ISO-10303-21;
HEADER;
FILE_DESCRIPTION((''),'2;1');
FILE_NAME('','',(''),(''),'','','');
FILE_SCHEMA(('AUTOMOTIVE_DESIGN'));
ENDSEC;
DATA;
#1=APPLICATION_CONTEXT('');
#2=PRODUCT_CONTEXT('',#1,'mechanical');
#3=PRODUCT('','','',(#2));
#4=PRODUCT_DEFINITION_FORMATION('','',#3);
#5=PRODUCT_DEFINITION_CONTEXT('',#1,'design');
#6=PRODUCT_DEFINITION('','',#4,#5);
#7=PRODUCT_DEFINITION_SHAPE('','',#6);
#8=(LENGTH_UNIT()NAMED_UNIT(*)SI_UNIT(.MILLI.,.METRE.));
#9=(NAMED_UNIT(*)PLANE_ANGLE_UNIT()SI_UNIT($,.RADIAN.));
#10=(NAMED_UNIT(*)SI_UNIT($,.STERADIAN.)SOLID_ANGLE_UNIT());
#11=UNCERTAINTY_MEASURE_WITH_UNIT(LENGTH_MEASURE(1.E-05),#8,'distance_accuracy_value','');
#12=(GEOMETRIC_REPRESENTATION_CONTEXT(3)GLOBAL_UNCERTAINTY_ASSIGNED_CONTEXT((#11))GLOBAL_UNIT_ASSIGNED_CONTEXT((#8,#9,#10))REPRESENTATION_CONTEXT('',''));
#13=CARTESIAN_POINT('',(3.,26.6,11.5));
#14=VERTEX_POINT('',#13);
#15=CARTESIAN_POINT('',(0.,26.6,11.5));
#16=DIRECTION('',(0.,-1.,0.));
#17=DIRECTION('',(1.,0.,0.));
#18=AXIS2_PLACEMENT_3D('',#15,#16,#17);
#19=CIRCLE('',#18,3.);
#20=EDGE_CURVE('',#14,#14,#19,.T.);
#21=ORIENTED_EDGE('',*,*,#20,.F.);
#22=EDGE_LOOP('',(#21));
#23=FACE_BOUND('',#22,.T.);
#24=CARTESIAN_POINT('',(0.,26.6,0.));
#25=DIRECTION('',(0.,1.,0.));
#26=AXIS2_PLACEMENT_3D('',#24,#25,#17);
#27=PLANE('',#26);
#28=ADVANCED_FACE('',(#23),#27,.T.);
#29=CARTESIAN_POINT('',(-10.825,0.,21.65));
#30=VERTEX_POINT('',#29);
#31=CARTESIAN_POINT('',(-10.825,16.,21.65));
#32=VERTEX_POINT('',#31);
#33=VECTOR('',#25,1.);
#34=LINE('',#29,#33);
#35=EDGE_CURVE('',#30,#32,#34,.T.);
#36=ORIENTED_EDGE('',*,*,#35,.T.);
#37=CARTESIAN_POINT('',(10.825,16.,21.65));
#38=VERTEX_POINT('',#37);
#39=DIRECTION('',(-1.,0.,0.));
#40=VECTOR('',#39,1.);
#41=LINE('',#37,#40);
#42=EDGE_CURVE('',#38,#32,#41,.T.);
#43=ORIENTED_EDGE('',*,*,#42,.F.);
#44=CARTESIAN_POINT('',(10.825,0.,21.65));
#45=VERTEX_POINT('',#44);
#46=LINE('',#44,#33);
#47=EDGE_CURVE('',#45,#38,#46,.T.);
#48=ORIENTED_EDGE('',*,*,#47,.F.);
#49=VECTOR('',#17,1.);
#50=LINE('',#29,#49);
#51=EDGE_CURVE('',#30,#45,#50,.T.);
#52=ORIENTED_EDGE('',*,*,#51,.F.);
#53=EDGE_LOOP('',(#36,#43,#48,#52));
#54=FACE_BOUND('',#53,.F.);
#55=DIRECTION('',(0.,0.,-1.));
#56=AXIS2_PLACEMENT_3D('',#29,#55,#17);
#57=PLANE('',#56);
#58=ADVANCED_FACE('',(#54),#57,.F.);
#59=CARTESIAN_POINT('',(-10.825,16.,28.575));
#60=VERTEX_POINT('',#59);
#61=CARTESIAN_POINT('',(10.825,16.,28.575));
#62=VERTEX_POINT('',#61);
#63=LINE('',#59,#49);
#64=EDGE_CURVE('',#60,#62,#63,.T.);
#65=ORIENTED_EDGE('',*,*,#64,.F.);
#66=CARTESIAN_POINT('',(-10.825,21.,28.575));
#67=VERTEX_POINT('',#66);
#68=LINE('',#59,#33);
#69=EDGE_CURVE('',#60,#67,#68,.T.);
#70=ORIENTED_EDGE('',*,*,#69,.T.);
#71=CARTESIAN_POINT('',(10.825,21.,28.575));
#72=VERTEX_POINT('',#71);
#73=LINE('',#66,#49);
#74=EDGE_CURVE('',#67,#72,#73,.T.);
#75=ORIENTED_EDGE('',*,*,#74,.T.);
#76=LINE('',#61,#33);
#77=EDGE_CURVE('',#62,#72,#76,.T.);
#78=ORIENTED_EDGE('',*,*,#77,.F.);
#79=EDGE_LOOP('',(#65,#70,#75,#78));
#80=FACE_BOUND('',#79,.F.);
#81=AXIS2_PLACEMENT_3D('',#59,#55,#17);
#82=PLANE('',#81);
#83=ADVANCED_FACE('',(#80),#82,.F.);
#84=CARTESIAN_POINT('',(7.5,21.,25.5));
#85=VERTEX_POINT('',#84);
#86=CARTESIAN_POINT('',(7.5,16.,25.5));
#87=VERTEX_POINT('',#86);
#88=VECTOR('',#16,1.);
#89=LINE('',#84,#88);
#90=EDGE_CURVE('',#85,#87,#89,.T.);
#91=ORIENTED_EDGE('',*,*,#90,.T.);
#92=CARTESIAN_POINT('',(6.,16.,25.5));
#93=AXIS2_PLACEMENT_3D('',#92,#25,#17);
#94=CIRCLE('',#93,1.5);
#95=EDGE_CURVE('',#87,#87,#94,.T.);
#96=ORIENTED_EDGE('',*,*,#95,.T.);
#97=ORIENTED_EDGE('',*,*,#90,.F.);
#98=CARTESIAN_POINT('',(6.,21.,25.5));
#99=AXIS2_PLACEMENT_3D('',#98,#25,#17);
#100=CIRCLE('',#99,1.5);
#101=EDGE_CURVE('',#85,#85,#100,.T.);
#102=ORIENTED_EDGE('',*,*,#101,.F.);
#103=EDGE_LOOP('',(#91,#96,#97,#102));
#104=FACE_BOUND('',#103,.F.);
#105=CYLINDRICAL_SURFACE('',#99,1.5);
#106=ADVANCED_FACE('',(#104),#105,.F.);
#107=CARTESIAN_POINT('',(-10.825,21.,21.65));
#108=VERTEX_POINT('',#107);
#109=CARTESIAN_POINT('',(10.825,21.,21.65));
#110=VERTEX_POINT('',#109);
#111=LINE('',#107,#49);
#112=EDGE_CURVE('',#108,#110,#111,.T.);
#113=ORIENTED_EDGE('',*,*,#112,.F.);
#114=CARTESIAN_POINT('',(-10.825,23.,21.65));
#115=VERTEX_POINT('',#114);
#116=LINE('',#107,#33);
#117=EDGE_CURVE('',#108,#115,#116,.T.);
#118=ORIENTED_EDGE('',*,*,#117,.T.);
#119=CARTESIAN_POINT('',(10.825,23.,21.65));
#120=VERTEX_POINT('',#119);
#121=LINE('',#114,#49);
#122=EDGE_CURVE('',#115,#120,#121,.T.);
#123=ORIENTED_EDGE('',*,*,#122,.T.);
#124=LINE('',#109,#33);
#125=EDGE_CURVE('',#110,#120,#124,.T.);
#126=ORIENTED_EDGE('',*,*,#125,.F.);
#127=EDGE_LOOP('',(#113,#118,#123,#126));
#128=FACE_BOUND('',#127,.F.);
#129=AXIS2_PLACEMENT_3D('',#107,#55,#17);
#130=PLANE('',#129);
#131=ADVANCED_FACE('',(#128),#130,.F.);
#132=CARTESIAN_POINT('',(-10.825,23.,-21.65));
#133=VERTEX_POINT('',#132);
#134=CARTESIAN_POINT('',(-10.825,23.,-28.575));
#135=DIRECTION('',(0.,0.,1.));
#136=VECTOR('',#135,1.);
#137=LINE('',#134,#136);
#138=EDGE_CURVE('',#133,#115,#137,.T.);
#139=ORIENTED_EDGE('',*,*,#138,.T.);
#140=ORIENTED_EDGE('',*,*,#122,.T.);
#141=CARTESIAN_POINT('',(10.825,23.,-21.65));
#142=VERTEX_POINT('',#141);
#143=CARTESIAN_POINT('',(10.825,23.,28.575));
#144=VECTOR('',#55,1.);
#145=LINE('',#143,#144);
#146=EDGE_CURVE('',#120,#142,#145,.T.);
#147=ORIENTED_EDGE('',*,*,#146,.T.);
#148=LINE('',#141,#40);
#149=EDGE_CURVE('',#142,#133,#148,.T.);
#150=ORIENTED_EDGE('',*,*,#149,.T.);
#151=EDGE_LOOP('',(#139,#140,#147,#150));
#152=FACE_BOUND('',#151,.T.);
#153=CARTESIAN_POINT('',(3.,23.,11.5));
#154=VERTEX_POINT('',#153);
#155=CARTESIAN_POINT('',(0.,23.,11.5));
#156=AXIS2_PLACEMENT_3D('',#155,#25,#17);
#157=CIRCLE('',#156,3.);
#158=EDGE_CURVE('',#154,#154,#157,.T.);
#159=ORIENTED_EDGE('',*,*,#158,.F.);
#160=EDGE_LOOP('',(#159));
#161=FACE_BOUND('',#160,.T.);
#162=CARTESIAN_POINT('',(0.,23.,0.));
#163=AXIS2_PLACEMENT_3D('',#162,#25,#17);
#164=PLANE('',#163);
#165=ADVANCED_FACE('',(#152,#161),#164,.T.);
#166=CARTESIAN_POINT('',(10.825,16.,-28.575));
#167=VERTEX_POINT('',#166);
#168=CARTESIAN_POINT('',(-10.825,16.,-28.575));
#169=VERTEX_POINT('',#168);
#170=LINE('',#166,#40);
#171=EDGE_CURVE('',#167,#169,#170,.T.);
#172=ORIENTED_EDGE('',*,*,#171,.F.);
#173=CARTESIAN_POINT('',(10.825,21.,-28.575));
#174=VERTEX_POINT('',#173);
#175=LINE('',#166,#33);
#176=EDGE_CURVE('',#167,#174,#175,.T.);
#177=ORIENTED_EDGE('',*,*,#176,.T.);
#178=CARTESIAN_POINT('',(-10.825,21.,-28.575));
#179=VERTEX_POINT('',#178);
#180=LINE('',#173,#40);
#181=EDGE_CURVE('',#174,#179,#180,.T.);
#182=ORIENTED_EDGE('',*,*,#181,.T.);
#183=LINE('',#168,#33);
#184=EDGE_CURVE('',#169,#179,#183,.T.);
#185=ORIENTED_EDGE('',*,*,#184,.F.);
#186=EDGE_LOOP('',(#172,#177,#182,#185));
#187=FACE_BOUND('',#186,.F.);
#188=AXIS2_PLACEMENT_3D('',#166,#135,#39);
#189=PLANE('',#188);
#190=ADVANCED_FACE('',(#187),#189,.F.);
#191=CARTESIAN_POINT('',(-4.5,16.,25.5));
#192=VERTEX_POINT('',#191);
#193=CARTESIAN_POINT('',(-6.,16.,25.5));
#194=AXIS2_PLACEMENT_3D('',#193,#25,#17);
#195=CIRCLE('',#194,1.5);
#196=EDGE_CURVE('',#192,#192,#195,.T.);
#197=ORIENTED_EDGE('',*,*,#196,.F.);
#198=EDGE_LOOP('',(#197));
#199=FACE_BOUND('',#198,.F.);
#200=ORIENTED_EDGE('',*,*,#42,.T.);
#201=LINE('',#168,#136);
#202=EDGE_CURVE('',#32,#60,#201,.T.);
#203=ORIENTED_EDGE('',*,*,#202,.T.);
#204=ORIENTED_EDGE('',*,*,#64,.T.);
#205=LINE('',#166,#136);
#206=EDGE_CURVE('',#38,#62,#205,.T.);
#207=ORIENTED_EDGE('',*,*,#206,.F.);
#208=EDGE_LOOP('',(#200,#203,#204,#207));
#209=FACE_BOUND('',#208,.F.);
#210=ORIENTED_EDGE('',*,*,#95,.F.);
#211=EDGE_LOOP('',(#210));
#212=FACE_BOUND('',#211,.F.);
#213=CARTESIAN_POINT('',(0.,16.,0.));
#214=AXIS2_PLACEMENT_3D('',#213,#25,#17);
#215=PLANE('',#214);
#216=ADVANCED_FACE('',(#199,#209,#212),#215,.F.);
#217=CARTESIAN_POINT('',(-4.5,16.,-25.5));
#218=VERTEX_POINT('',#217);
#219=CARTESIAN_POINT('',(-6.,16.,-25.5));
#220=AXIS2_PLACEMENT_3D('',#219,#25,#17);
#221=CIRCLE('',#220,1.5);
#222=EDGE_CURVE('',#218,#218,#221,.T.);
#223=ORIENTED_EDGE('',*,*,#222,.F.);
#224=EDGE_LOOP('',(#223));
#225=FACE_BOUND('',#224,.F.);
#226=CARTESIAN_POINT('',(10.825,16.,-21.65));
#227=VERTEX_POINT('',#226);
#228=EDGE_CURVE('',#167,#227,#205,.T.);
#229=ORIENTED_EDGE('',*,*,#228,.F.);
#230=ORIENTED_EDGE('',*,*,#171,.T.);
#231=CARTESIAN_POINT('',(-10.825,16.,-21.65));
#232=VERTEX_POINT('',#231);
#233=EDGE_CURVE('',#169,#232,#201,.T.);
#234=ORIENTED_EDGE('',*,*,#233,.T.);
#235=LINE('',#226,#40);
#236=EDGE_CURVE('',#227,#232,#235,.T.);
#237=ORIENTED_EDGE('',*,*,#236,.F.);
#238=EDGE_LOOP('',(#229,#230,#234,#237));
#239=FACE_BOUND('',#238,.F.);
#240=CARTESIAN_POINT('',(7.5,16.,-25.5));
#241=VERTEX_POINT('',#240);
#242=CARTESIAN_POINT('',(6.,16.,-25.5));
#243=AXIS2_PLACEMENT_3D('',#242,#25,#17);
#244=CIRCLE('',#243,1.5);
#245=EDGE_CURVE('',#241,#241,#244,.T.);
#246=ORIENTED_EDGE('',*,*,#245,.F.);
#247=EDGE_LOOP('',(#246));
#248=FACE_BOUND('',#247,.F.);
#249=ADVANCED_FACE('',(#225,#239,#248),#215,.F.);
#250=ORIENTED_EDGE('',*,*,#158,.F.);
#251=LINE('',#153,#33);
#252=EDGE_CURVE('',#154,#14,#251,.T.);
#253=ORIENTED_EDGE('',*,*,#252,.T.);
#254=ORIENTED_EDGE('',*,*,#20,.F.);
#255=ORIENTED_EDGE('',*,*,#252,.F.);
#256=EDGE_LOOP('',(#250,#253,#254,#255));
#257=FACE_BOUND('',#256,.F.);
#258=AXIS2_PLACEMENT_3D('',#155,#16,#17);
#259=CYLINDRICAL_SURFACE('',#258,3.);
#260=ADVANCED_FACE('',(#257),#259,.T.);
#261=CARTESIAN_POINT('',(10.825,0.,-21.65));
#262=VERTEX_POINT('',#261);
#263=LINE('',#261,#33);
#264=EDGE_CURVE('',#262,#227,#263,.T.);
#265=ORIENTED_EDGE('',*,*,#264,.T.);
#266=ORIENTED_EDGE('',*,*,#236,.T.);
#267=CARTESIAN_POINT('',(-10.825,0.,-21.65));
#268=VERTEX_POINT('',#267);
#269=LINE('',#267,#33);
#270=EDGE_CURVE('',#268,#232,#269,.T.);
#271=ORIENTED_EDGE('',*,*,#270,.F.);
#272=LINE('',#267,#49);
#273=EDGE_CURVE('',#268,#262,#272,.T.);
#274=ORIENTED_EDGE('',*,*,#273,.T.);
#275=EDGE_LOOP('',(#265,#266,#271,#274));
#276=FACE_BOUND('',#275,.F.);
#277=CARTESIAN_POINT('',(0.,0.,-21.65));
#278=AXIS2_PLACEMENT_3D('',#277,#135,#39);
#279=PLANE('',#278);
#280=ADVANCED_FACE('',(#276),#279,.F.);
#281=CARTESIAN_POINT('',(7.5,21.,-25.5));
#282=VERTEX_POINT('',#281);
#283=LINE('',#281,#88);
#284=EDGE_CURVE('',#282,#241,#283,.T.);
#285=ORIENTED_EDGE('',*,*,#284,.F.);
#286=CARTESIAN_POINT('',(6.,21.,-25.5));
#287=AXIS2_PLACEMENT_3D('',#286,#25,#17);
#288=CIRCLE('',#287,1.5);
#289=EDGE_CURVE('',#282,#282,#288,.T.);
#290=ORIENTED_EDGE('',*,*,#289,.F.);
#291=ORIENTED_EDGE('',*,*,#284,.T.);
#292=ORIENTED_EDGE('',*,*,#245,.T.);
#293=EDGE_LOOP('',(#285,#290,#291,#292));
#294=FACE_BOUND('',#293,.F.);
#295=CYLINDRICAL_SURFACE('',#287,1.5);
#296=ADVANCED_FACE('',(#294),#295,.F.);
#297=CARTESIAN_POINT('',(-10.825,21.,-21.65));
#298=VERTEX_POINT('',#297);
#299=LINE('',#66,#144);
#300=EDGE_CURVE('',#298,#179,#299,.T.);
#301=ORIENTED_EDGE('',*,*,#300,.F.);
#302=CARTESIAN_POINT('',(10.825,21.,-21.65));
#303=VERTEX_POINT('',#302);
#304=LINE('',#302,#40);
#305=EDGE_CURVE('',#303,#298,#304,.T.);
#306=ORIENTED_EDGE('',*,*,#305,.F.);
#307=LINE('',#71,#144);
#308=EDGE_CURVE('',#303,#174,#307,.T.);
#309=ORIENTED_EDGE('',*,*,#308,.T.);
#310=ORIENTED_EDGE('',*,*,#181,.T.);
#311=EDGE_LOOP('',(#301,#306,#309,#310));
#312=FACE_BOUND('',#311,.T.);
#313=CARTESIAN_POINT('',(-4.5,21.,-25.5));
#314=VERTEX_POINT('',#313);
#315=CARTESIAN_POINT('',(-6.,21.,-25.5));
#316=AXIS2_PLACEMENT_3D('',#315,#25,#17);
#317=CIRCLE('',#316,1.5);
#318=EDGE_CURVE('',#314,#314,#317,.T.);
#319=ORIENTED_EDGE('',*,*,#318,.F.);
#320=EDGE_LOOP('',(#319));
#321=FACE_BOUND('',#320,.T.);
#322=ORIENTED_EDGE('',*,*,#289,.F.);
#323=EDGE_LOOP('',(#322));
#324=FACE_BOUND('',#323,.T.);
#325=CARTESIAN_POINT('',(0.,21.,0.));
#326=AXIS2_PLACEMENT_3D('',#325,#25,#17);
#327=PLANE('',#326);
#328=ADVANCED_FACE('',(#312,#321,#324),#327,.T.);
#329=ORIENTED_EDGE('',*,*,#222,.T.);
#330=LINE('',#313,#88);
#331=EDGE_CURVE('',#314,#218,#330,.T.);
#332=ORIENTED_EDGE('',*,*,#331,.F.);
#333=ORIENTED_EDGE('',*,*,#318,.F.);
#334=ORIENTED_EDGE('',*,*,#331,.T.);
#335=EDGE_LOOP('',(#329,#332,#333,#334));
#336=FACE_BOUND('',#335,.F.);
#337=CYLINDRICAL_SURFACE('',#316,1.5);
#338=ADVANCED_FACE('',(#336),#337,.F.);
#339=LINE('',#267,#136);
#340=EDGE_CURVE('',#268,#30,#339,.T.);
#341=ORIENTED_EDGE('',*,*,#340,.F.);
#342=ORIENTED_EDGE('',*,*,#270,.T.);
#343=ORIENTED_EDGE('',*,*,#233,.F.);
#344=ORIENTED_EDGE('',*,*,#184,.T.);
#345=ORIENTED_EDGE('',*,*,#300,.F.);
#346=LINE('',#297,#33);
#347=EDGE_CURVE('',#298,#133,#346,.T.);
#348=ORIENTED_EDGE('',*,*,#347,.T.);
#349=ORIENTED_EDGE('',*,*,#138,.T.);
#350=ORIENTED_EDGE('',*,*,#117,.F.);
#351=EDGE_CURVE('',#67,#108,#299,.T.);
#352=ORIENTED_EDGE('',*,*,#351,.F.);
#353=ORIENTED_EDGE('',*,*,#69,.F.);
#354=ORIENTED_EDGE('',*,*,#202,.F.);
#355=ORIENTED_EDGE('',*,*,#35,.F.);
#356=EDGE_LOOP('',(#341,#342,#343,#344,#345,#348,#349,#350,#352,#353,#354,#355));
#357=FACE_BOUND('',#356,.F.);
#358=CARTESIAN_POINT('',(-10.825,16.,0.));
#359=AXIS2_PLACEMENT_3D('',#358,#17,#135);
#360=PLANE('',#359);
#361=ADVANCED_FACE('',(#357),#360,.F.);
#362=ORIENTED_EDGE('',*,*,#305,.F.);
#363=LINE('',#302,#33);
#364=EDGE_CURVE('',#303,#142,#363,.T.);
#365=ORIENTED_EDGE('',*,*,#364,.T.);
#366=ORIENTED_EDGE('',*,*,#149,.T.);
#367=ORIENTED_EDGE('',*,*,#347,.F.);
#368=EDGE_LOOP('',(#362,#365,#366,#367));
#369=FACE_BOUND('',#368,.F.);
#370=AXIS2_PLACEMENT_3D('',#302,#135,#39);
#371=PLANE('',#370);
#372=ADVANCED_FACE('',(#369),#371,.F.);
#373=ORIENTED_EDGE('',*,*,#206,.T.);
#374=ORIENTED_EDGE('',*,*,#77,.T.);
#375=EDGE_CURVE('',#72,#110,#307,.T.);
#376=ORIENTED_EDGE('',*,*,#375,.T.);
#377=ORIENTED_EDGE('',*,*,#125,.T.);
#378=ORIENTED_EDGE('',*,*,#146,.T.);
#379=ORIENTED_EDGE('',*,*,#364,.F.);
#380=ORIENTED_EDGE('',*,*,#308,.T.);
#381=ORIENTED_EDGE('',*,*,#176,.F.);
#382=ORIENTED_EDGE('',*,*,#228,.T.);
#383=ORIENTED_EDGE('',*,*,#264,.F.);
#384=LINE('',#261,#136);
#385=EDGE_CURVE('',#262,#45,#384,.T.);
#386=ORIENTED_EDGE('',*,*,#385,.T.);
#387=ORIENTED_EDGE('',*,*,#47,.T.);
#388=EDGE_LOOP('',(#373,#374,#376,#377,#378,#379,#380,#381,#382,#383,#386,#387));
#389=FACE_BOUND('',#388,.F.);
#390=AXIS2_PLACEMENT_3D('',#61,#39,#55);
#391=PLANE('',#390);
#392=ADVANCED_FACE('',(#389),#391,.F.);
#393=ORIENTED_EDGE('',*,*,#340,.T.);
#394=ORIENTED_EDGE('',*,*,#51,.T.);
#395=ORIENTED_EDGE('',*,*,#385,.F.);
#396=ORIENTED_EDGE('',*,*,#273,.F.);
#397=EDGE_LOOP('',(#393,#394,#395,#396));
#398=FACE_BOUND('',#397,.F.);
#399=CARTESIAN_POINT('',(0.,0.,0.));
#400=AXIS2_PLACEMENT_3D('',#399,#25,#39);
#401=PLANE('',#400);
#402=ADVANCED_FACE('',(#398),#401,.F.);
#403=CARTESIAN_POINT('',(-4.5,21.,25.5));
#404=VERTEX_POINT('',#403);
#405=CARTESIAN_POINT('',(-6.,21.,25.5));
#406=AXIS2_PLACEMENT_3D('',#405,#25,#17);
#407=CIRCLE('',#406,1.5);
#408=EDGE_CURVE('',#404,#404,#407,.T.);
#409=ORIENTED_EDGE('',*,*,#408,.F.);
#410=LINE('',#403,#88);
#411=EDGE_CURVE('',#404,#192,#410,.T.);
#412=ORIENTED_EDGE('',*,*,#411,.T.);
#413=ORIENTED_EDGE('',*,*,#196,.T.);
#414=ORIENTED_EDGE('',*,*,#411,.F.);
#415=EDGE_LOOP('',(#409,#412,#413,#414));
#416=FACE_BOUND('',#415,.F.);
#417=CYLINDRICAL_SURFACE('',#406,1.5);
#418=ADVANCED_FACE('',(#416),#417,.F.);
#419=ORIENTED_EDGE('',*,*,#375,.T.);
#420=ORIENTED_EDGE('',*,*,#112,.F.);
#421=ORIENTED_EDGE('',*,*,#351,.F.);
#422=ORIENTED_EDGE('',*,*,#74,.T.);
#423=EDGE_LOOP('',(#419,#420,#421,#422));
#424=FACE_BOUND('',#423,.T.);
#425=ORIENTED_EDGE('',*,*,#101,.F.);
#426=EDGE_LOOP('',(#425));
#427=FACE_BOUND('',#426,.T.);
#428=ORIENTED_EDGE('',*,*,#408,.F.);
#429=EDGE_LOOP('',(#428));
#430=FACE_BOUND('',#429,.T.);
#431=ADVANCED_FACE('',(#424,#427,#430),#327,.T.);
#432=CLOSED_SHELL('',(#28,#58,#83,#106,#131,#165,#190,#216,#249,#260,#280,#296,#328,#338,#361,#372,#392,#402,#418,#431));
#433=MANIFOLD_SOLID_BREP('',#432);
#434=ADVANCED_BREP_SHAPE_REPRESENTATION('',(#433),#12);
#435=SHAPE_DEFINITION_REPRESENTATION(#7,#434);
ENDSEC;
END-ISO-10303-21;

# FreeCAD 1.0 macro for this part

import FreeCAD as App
import Part
import Sketcher

V = App.Vector
Q = App.Units.Quantity


def add_polygon(sketch, points):
    """Adds a closed chain of lines whose ends are joined by coincident constraints."""
    first, n = sketch.GeometryCount, len(points)
    for a, b in zip(points, points[1:] + points[:1]):
        sketch.addGeometry(Part.LineSegment(App.Vector(*a, 0), App.Vector(*b, 0)), False)
    for i in range(n):
        sketch.addConstraint(Sketcher.Constraint("Coincident", first + i, 2, first + (i + 1) % n, 1))

doc = App.newDocument("Part")
body = doc.addObject("PartDesign::Body", "Body")

sketch1 = body.newObject("Sketcher::SketchObject", "Sketch")
sketch1.AttachmentSupport = (doc.getObject("XZ_Plane"), [""])
sketch1.MapMode = "FlatFace"
add_polygon(sketch1, [(-11, 22), (11, 22), (11, -22), (-11, -22)])
sketch1.addConstraint([
    Sketcher.Constraint("Horizontal", 0),
    Sketcher.Constraint("Vertical", 1),
    Sketcher.Constraint("Horizontal", 2),
    Sketcher.Constraint("Vertical", 3),
    Sketcher.Constraint("Symmetric", 0, 2, 2, 2, -1, 1),
    Sketcher.Constraint("DistanceY", 1, 2, 1, 1, Q("43.3 mm")),
    Sketcher.Constraint("DistanceX", 0, 1, 0, 2, Q("21.65 mm")),
])
pad1 = body.newObject("PartDesign::Pad", "Pad")
pad1.Profile = sketch1
pad1.Length = 16
pad1.Reversed = True

sketch2 = body.newObject("Sketcher::SketchObject", "Sketch001")
sketch2.AttachmentSupport = (doc.getObject("XZ_Plane"), [""])
sketch2.MapMode = "FlatFace"
sketch2.AttachmentOffset = App.Placement(V(0, 0, -16), App.Rotation())
add_polygon(sketch2, [(-11, 29), (11, 29), (11, -29), (-11, -29)])
sketch2.addConstraint([
    Sketcher.Constraint("Horizontal", 0),
    Sketcher.Constraint("Vertical", 1),
    Sketcher.Constraint("Horizontal", 2),
    Sketcher.Constraint("Vertical", 3),
    Sketcher.Constraint("Symmetric", 0, 2, 2, 2, -1, 1),
    Sketcher.Constraint("DistanceY", 1, 2, 1, 1, Q("57.15 mm")),
    Sketcher.Constraint("DistanceX", 0, 1, 0, 2, Q("21.65 mm")),
])
pad2 = body.newObject("PartDesign::Pad", "Pad001")
pad2.Profile = sketch2
pad2.Length = 5
pad2.Reversed = True

sketch3 = body.newObject("Sketcher::SketchObject", "Sketch002")
sketch3.AttachmentSupport = (doc.getObject("XZ_Plane"), [""])
sketch3.MapMode = "FlatFace"
sketch3.AttachmentOffset = App.Placement(V(0, 0, -21), App.Rotation())
sketch3.addGeometry([
    Part.Circle(V(-6, 25.5, 0), V(0, 0, 1), 1.5),
    Part.Circle(V(6, 25.5, 0), V(0, 0, 1), 1.5),
    Part.Circle(V(-6, -25.5, 0), V(0, 0, 1), 1.5),
    Part.Circle(V(6, -25.5, 0), V(0, 0, 1), 1.5),
], False)
sketch3.addConstraint([
    Sketcher.Constraint("Equal", 0, 1),
    Sketcher.Constraint("Equal", 1, 2),
    Sketcher.Constraint("Equal", 2, 3),
    Sketcher.Constraint("Symmetric", 1, 3, 2, 3, -1, 1),
    Sketcher.Constraint("Symmetric", 0, 3, 3, 3, -1, 1),
    Sketcher.Constraint("Symmetric", 0, 3, 1, 3, -2),
    Sketcher.Constraint("Diameter", 0, Q("3 mm")),
    Sketcher.Constraint("DistanceX", 0, 3, 1, 3, Q("12 mm")),
    Sketcher.Constraint("DistanceY", 2, 3, 0, 3, Q("51 mm")),
])
pocket1 = body.newObject("PartDesign::Pocket", "Pocket")
pocket1.Profile = sketch3
pocket1.Type = "UpToFirst"
pocket1.Reversed = True

sketch4 = body.newObject("Sketcher::SketchObject", "Sketch003")
sketch4.AttachmentSupport = (doc.getObject("XZ_Plane"), [""])
sketch4.MapMode = "FlatFace"
sketch4.AttachmentOffset = App.Placement(V(0, 0, -21), App.Rotation())
add_polygon(sketch4, [(11, 22), (11, -22), (-11, -22), (-11, 22)])
sketch4.addConstraint([
    Sketcher.Constraint("Vertical", 0),
    Sketcher.Constraint("Horizontal", 1),
    Sketcher.Constraint("Vertical", 2),
    Sketcher.Constraint("Horizontal", 3),
    Sketcher.Constraint("Symmetric", 0, 2, 2, 2, -1, 1),
    Sketcher.Constraint("DistanceY", 0, 2, 0, 1, Q("43.3 mm")),
    Sketcher.Constraint("DistanceX", 1, 2, 1, 1, Q("21.65 mm")),
])
pad3 = body.newObject("PartDesign::Pad", "Pad002")
pad3.Profile = sketch4
pad3.Length = 2
pad3.Reversed = True

sketch5 = body.newObject("Sketcher::SketchObject", "Sketch004")
sketch5.AttachmentSupport = (doc.getObject("XZ_Plane"), [""])
sketch5.MapMode = "FlatFace"
sketch5.AttachmentOffset = App.Placement(V(0, 0, -23), App.Rotation())
sketch5.addGeometry(Part.Circle(V(0, 11.5, 0), V(0, 0, 1), 3), False)
sketch5.addConstraint([
    Sketcher.Constraint("PointOnObject", 0, 3, -2),
    Sketcher.Constraint("Diameter", 0, Q("6 mm")),
    Sketcher.Constraint("DistanceY", -1, 1, 0, 3, Q("11.5 mm")),
])
pad4 = body.newObject("PartDesign::Pad", "Pad003")
pad4.Profile = sketch5
pad4.Length = 3.6
pad4.Reversed = True

doc.recompute()
